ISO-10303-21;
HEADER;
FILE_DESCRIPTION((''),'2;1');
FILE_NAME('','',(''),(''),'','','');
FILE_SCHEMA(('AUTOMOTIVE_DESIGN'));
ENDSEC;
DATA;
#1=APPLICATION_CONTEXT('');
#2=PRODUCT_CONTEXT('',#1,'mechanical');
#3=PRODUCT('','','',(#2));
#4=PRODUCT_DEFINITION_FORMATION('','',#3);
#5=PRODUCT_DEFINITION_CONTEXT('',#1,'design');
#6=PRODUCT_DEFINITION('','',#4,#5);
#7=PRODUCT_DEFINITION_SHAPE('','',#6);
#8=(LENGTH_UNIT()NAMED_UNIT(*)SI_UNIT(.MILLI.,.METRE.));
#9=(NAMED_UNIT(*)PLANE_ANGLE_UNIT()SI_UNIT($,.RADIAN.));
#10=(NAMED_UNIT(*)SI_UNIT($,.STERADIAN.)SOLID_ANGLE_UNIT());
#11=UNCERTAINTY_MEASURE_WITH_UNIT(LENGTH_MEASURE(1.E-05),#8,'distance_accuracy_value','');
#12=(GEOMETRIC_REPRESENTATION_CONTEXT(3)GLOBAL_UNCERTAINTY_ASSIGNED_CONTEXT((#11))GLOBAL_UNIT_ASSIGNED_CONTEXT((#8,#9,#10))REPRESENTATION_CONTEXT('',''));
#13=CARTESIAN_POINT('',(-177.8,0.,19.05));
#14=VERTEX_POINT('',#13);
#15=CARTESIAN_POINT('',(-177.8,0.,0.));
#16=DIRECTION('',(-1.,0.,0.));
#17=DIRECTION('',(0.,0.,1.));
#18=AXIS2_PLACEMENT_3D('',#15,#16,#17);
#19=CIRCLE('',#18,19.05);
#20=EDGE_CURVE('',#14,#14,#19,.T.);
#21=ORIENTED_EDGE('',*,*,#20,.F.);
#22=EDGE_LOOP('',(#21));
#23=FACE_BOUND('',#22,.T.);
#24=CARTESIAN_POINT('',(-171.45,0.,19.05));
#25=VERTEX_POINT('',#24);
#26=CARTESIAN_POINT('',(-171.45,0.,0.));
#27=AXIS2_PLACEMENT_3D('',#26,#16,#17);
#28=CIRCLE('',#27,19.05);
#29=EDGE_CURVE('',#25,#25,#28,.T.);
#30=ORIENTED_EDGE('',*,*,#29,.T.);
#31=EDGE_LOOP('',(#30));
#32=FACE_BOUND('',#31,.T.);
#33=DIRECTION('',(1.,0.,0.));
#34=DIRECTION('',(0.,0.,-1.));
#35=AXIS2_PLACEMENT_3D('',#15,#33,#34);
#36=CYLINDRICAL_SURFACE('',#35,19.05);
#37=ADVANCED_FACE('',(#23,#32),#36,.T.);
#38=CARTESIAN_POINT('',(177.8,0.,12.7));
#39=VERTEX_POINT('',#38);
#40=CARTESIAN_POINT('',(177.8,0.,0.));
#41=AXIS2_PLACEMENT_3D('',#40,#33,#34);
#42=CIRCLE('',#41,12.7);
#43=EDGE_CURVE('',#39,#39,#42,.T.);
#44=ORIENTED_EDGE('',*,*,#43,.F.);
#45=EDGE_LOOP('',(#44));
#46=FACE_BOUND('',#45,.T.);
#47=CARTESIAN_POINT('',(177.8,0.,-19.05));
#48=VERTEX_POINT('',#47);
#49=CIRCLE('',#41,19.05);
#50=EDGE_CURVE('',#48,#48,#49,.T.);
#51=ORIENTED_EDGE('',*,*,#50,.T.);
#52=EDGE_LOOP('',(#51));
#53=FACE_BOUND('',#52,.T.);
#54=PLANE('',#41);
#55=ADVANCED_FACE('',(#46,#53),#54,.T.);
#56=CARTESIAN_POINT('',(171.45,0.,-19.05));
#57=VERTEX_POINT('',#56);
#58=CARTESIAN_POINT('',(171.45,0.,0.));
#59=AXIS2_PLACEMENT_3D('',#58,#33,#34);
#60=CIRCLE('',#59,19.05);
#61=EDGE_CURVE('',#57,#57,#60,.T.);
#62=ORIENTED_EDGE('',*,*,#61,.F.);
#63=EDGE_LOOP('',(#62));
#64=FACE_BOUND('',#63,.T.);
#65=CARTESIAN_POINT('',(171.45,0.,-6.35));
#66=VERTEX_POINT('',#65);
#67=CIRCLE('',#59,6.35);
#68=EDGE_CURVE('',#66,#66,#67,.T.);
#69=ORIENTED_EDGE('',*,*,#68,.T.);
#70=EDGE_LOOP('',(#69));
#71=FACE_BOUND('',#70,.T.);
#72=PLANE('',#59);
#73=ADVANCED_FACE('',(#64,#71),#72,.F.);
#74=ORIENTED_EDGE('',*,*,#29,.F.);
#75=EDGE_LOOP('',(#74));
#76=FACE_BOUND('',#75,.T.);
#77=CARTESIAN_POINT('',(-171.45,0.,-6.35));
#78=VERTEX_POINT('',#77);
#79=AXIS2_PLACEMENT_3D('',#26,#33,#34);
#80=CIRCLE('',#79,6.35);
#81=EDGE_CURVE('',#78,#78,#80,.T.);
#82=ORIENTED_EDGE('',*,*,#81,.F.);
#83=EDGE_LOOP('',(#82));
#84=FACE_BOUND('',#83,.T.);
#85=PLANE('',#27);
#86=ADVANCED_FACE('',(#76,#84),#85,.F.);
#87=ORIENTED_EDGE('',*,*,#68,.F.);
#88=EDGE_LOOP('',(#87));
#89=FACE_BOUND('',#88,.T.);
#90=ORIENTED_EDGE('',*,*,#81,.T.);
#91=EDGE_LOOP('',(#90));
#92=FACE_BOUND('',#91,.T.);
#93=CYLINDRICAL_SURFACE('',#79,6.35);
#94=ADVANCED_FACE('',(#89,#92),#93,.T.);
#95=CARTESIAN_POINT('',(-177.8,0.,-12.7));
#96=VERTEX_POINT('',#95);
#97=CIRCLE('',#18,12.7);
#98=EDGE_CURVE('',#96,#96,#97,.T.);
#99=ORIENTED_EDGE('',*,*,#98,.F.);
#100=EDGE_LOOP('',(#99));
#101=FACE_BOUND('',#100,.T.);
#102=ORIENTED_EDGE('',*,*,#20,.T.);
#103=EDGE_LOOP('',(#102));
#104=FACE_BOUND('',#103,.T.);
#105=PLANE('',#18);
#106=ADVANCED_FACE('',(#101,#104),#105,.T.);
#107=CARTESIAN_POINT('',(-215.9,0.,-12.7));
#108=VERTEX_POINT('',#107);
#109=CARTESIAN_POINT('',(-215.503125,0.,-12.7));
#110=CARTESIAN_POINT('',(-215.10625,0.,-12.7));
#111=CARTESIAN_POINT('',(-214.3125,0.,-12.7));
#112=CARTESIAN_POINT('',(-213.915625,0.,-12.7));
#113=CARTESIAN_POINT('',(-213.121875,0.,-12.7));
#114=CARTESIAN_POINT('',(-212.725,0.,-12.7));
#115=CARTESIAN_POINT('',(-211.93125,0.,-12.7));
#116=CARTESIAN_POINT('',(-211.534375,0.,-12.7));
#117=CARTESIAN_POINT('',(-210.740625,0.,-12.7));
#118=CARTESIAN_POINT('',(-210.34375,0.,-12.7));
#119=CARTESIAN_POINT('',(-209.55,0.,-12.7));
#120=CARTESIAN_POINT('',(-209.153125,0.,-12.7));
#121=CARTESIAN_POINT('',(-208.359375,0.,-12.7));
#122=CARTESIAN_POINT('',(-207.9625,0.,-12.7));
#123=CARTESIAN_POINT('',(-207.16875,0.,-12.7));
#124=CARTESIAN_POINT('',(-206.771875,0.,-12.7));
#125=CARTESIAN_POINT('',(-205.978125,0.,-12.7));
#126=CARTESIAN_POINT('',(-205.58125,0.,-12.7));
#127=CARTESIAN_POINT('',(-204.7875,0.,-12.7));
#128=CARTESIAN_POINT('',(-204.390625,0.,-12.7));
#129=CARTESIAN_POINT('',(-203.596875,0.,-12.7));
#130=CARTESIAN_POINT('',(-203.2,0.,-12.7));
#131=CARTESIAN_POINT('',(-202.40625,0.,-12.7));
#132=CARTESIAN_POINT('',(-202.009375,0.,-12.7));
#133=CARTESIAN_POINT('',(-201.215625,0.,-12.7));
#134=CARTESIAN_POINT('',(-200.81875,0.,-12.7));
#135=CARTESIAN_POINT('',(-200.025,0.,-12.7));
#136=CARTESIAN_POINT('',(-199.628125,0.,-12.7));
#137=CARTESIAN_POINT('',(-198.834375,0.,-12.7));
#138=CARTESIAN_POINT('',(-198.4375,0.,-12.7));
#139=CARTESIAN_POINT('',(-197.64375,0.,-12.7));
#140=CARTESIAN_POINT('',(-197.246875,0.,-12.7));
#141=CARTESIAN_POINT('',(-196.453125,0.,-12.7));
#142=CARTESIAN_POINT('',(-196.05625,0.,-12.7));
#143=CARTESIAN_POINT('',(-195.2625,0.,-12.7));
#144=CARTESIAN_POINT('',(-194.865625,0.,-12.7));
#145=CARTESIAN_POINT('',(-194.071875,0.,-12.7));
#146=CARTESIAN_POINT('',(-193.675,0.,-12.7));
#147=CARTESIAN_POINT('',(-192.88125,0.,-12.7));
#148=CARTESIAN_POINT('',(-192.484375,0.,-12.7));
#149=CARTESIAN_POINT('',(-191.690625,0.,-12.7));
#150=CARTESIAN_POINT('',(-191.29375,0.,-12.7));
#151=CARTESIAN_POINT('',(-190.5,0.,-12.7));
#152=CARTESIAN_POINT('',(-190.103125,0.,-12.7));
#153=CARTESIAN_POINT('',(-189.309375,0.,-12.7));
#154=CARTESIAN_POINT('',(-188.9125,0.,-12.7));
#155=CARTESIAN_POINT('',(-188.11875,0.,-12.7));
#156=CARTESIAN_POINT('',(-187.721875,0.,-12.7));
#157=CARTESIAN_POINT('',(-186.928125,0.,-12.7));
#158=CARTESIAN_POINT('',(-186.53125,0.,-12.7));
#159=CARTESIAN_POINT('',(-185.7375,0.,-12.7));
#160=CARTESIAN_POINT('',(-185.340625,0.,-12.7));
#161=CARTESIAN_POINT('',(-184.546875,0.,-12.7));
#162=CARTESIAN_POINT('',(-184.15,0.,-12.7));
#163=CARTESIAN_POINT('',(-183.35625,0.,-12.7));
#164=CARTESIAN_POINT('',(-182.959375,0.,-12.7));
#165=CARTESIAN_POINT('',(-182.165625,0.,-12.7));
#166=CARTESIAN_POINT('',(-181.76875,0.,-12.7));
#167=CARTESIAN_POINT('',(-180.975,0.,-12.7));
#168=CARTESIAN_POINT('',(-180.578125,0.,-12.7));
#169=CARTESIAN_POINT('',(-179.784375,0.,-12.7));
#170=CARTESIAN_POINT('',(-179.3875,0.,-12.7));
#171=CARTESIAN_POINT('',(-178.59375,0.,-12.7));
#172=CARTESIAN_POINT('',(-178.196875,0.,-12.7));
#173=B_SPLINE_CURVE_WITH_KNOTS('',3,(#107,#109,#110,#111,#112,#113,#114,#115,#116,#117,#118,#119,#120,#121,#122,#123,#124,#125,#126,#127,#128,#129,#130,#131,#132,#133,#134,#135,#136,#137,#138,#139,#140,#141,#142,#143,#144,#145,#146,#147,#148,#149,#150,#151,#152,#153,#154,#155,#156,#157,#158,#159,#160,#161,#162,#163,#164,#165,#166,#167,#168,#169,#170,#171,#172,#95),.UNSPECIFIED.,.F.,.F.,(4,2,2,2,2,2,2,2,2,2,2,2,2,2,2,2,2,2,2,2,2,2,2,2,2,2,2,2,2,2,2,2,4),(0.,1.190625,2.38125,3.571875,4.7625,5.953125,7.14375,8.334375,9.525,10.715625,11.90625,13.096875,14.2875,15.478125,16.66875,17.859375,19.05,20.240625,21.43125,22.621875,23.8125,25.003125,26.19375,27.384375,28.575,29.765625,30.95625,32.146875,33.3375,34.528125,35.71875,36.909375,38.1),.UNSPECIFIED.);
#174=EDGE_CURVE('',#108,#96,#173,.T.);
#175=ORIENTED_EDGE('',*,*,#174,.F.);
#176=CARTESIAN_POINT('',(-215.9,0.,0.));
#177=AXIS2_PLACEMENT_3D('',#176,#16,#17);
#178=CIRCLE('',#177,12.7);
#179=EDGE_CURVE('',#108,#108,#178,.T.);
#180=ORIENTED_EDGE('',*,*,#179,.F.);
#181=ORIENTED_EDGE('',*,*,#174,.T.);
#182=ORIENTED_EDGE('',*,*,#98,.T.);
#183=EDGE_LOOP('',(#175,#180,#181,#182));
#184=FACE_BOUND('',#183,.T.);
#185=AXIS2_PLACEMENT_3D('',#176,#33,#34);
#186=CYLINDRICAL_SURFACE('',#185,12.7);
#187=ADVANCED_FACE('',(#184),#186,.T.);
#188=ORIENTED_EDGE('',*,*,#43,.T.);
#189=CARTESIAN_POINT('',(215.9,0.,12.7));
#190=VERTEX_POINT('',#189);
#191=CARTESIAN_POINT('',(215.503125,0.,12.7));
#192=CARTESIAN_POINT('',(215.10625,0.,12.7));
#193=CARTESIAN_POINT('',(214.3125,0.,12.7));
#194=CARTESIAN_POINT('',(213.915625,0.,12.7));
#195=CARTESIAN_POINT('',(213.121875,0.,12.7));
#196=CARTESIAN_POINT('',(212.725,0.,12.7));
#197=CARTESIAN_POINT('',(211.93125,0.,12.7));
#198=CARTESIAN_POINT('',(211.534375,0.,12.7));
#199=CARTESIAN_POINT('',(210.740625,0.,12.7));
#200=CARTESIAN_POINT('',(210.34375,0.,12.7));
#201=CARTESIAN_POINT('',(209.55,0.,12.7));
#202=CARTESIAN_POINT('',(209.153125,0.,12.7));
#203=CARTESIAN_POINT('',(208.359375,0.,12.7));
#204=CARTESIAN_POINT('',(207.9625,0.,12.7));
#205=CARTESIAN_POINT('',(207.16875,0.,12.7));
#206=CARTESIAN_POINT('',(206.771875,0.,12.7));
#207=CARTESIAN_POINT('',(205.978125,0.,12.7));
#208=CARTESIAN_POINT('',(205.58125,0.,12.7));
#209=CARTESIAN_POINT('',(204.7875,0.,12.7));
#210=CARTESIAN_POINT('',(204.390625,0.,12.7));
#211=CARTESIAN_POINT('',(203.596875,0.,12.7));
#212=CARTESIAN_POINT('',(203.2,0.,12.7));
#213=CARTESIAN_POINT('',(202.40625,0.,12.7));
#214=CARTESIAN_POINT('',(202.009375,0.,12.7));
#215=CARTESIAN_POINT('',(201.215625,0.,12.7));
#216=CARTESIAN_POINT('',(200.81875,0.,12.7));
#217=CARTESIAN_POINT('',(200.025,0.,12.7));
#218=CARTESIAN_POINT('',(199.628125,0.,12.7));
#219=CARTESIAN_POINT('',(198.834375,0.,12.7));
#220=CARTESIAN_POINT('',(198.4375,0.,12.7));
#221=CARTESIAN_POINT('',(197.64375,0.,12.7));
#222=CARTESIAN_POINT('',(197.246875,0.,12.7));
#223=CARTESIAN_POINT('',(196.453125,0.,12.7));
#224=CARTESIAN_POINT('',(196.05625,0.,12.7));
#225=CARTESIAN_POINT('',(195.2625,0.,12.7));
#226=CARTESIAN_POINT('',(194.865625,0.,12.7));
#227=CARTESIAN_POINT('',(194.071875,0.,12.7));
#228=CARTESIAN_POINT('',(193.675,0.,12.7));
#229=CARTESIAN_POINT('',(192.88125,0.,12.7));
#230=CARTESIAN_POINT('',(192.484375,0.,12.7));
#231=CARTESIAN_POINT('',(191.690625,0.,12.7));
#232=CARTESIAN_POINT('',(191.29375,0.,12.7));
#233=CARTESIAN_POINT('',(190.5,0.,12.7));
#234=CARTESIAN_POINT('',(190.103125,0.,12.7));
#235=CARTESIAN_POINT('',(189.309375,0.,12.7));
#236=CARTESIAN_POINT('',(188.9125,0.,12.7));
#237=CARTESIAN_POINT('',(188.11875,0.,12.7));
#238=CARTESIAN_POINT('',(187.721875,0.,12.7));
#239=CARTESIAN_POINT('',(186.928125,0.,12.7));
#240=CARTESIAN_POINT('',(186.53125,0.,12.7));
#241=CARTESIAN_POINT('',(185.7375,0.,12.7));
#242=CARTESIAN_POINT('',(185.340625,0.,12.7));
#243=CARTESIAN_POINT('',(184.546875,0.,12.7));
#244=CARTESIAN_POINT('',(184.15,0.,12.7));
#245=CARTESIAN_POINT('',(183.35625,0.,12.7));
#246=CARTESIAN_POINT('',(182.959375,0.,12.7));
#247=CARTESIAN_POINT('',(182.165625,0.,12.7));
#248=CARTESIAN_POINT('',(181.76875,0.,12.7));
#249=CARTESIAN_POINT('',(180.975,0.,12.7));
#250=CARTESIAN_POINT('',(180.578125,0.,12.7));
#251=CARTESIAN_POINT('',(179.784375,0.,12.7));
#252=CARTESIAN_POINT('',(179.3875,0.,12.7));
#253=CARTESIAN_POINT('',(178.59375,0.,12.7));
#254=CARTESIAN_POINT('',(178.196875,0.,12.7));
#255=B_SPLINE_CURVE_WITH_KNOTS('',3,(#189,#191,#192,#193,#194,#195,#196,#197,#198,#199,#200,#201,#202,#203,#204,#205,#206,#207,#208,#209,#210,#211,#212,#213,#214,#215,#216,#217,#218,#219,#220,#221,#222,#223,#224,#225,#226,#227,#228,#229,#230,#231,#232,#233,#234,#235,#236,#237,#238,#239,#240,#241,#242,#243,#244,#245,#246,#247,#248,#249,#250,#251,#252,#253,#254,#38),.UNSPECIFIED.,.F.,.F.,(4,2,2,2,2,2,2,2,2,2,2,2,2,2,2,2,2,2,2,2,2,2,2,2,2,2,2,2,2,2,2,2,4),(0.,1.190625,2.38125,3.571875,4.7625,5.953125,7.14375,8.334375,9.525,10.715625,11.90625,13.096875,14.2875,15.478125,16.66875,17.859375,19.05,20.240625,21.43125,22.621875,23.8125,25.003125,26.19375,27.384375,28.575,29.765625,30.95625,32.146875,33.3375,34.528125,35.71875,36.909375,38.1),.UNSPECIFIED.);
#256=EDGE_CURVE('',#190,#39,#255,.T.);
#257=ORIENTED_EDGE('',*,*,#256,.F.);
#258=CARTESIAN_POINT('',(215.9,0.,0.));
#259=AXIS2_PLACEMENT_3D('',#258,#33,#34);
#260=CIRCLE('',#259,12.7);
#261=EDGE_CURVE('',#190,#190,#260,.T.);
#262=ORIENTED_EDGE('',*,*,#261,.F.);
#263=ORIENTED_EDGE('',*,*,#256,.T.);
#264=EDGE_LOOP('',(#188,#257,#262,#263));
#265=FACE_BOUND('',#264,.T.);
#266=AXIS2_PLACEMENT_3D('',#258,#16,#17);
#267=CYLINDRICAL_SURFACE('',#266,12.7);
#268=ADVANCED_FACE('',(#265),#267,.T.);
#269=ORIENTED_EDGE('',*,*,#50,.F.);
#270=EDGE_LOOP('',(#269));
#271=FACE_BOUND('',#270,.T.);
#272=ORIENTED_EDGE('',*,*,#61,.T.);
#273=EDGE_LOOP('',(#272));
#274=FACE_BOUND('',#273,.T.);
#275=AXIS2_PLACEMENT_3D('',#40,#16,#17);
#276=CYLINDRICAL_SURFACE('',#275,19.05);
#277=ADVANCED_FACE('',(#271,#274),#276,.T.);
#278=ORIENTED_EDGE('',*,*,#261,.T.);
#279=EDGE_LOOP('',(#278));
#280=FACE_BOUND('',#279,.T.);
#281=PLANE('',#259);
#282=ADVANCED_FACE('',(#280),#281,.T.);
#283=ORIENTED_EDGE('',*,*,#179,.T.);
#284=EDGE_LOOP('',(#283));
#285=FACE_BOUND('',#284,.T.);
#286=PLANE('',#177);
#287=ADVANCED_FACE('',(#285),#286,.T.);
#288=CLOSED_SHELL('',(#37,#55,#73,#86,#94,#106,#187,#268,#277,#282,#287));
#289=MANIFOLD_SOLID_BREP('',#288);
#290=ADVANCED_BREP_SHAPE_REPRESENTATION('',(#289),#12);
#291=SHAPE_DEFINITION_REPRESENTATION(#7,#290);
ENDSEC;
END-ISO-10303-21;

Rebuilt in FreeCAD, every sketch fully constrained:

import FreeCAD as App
import Part
import Sketcher

V = App.Vector
Q = App.Units.Quantity

doc = App.newDocument("Part")
body = doc.addObject("PartDesign::Body", "Body")

# Sketch on YZ plane
sketch1 = body.newObject("Sketcher::SketchObject", "Sketch")
sketch1.AttachmentSupport = (doc.getObject("YZ_Plane"), [""])
sketch1.MapMode = "FlatFace"
sketch1.addGeometry(Part.Circle(V(0, 0, 0), V(0, 0, 1), 6), False)
sketch1.addConstraint([
    Sketcher.Constraint("Coincident", 0, 3, -1, 1),
    Sketcher.Constraint("Diameter", 0, Q("0.5 in")),
])
pad1 = body.newObject("PartDesign::Pad", "Pad")
pad1.Profile = sketch1
pad1.Type = "TwoLengths"
pad1.Length = Q("6.75 in")
pad1.Length2 = Q("6.75 in")

# Sketch on YZ plane
sketch2 = body.newObject("Sketcher::SketchObject", "Sketch001")
sketch2.AttachmentSupport = (doc.getObject("YZ_Plane"), [""])
sketch2.MapMode = "FlatFace"
sketch2.AttachmentOffset = App.Placement(V(0, 0, 6.75 * 25.4), App.Rotation())
sketch2.addGeometry(Part.Circle(V(0, 0, 0), V(0, 0, 1), 19), False)
sketch2.addConstraint([
    Sketcher.Constraint("Coincident", 0, 3, -1, 1),
    Sketcher.Constraint("Diameter", 0, Q("1.5 in")),
])
pad2 = body.newObject("PartDesign::Pad", "Pad001")
pad2.Profile = sketch2
pad2.Length = Q("0.25 in")

# Sketch on YZ plane
sketch3 = body.newObject("Sketcher::SketchObject", "Sketch002")
sketch3.AttachmentSupport = (doc.getObject("YZ_Plane"), [""])
sketch3.MapMode = "FlatFace"
sketch3.AttachmentOffset = App.Placement(V(0, 0, -7 * 25.4), App.Rotation())
sketch3.addGeometry(Part.Circle(V(0, 0, 0), V(0, 0, 1), 19), False)
sketch3.addConstraint([
    Sketcher.Constraint("Coincident", 0, 3, -1, 1),
    Sketcher.Constraint("Diameter", 0, Q("1.5 in")),
])
pad3 = body.newObject("PartDesign::Pad", "Pad002")
pad3.Profile = sketch3
pad3.Length = Q("0.25 in")

# Sketch on YZ plane
sketch4 = body.newObject("Sketcher::SketchObject", "Sketch003")
sketch4.AttachmentSupport = (doc.getObject("YZ_Plane"), [""])
sketch4.MapMode = "FlatFace"
sketch4.AttachmentOffset = App.Placement(V(0, 0, -7 * 25.4), App.Rotation())
sketch4.addGeometry(Part.Circle(V(0, 0, 0), V(0, 0, 1), 13), False)
sketch4.addConstraint([
    Sketcher.Constraint("Coincident", 0, 3, -1, 1),
    Sketcher.Constraint("Diameter", 0, Q("1 in")),
])
pad4 = body.newObject("PartDesign::Pad", "Pad003")
pad4.Profile = sketch4
pad4.Length = Q("1.5 in")
pad4.Reversed = True

# Sketch on YZ plane
sketch5 = body.newObject("Sketcher::SketchObject", "Sketch004")
sketch5.AttachmentSupport = (doc.getObject("YZ_Plane"), [""])
sketch5.MapMode = "FlatFace"
sketch5.AttachmentOffset = App.Placement(V(0, 0, 8.5 * 25.4), App.Rotation())
sketch5.addGeometry(Part.Circle(V(0, 0, 0), V(0, 0, 1), 13), False)
sketch5.addConstraint([
    Sketcher.Constraint("Coincident", 0, 3, -1, 1),
    Sketcher.Constraint("Diameter", 0, Q("1 in")),
])
pad5 = body.newObject("PartDesign::Pad", "Pad004")
pad5.Profile = sketch5
pad5.Length = Q("1.5 in")
pad5.Reversed = True

doc.recompute()
